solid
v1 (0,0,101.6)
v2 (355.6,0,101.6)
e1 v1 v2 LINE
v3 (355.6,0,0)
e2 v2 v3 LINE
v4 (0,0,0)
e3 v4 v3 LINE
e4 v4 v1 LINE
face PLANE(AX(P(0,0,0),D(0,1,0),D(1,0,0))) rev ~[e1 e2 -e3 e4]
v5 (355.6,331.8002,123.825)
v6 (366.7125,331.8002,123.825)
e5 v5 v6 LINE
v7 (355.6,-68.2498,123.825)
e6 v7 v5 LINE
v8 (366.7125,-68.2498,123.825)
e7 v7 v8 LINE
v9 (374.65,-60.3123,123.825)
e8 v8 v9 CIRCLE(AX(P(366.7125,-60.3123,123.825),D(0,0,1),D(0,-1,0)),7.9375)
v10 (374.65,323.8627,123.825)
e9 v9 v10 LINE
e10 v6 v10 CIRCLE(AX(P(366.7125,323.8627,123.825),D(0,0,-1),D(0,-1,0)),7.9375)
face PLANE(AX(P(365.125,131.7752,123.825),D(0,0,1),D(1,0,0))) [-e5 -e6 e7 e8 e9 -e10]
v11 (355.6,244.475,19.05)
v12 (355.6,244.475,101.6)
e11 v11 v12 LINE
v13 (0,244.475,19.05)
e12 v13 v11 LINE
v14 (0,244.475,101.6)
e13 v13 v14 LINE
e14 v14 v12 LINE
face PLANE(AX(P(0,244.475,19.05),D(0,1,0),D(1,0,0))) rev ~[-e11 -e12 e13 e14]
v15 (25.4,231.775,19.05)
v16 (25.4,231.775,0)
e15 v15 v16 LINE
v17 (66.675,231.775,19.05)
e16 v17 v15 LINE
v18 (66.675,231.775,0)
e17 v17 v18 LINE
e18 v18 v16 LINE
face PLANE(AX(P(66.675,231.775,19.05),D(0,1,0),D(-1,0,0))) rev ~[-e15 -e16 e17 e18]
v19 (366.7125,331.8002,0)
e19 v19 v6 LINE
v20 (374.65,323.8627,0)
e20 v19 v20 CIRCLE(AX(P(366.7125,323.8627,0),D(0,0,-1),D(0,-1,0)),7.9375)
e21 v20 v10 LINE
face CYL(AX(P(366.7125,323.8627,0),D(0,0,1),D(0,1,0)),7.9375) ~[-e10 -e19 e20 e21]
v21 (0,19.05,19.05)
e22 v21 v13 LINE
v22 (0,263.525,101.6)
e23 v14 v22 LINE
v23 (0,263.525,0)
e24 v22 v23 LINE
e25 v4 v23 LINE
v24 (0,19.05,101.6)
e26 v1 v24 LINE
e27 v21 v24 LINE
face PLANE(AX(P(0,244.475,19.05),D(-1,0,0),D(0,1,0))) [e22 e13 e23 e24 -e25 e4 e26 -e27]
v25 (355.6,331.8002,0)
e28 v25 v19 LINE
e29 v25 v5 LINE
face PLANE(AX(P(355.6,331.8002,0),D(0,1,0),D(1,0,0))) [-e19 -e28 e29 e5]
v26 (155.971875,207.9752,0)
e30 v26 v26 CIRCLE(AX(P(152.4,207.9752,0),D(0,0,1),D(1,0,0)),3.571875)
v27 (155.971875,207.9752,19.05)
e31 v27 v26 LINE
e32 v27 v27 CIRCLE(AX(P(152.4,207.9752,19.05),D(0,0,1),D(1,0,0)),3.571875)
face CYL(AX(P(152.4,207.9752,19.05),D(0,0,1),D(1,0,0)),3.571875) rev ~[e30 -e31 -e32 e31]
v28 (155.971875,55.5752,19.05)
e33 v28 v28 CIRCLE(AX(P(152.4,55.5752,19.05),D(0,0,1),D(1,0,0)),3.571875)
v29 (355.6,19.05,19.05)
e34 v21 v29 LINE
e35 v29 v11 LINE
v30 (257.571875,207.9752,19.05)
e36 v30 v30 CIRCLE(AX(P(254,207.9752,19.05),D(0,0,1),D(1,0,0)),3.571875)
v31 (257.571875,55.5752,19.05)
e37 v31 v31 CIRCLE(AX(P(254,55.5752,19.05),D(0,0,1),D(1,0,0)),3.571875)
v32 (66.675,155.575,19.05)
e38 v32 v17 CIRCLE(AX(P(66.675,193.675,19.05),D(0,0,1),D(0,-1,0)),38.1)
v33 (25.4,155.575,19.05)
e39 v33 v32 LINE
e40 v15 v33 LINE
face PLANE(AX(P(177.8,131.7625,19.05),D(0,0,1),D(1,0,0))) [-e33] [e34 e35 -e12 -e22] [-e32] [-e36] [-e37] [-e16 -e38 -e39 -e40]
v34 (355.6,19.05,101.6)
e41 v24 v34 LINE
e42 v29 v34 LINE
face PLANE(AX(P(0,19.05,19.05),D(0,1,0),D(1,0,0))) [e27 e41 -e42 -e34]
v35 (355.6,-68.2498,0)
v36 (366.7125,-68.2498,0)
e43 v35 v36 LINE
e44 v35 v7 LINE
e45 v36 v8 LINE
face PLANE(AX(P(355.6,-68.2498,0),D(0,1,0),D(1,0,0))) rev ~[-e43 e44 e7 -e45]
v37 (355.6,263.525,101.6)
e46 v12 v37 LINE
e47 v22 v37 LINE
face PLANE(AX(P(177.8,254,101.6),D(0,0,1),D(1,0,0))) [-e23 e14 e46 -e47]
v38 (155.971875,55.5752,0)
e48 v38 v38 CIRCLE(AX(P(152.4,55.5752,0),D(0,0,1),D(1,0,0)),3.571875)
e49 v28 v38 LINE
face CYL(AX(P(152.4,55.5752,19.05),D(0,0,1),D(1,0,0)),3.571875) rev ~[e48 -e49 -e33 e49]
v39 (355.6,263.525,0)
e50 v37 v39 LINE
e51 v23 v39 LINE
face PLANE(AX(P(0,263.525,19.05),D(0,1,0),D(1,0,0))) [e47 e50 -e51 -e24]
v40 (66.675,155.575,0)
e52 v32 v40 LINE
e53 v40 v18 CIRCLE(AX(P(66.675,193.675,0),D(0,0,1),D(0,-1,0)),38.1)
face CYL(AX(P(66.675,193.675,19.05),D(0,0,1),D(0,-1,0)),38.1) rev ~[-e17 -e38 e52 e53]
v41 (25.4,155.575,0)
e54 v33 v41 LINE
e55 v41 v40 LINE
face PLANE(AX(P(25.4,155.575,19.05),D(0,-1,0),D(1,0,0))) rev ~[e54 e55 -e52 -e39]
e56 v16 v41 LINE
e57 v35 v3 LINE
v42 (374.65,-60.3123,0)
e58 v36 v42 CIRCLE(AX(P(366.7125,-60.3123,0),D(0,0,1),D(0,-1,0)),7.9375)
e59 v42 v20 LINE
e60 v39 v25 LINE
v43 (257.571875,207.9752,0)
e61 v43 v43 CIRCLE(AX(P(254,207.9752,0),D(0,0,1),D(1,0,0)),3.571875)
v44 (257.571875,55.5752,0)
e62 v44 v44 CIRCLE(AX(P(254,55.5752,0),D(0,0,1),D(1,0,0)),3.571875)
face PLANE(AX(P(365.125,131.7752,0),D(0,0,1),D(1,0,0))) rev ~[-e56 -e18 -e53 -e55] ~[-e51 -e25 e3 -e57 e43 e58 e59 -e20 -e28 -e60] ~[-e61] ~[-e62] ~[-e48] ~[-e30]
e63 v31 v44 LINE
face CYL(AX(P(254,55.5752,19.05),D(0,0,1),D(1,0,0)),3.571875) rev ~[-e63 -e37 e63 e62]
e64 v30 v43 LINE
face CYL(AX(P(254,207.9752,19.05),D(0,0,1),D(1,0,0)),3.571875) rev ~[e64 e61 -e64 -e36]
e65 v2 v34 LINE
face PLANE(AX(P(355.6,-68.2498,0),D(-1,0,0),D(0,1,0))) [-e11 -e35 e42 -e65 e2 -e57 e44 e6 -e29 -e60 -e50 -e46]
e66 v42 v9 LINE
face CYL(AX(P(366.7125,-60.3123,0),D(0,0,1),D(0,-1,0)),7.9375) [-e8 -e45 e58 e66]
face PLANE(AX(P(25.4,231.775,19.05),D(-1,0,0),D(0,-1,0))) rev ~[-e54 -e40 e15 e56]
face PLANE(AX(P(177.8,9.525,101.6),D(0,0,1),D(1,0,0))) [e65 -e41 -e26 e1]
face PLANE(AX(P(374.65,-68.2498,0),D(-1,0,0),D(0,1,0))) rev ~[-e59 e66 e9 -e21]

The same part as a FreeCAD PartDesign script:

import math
import FreeCAD as App
import Part
import Sketcher
Q = App.Units.Quantity


def edges_at(feature, points):
    """Names of the edges that pass closest to the given points."""
    edges = feature.Shape.Edges
    near = lambda p: min(range(len(edges)), key=lambda i: edges[i].distToShape(Part.Vertex(*p))[0])
    return sorted({f"Edge{near(p) + 1}" for p in points})


def add_polygon(sketch, points):
    """Adds a closed chain of lines whose ends are joined by coincident constraints."""
    first, n = sketch.GeometryCount, len(points)
    for a, b in zip(points, points[1:] + points[:1]):
        sketch.addGeometry(Part.LineSegment(App.Vector(*a, 0), App.Vector(*b, 0)), False)
    for i in range(n):
        sketch.addConstraint(Sketcher.Constraint("Coincident", first + i, 2, first + (i + 1) % n, 1))

doc = App.newDocument("Part")
params = doc.addObject("Spreadsheet::Sheet", "Params")
for row, (alias, value) in enumerate([
    ("sketch1_width", "14 in"),
    ("sketch1_height", "10.375 in"),
    ("pad1_length", "0.75 in"),
    ("sketch2_width", "14 in"),
    ("sketch2_height", "0.75 in"),
    ("pad2_length", "3.25 in"),
    ("sketch3_width", "0.75 in"),
    ("sketch3_height", "15.75 in"),
    ("pad3_length", "4.875 in"),
    ("fillet_radius", "0.3125 in"),
    ("sketch4_radius", "1.5 in"),
    ("sketch4_width", "1.625 in"),
    ("pocket1_length", "1 in"),
    ("sketch5_diameter", "0.28125 in"),
    ("pocket2_length", "1 in"),
], start=1):
    params.set(f"A{row}", alias)
    params.set(f"B{row}", "=" + value)
    params.setAlias(f"B{row}", alias)

body = doc.addObject("PartDesign::Body", "Body")

# Sketch on XY plane
sketch1 = body.newObject("Sketcher::SketchObject", "Sketch")
sketch1.AttachmentSupport = (doc.getObject("XY_Plane"), [""])
sketch1.MapMode = "FlatFace"
add_polygon(sketch1, [(0, 264), (0, 0), (356, 0), (356, 264)])  # lines 0-3
sketch1.addConstraint([
    Sketcher.Constraint("Vertical", 0),
    Sketcher.Constraint("Horizontal", 1),
    Sketcher.Constraint("Vertical", 2),
    Sketcher.Constraint("Horizontal", 3),
    Sketcher.Constraint("Coincident", 0, 2, -1, 1),
    Sketcher.Constraint("DistanceX", 1, 1, 1, 2, Q("14 in")),
    Sketcher.Constraint("DistanceY", 0, 2, 0, 1, Q("10.375 in")),
])
sketch1.setExpression("Constraints[9]", "Params.sketch1_width")
sketch1.setExpression("Constraints[10]", "Params.sketch1_height")
pad1 = body.newObject("PartDesign::Pad", "Pad")
pad1.Profile = sketch1
pad1.setExpression("Length", "Params.pad1_length")

# Sketch on XY plane
sketch2 = body.newObject("Sketcher::SketchObject", "Sketch001")
sketch2.AttachmentSupport = (doc.getObject("XY_Plane"), [""])
sketch2.MapMode = "FlatFace"
sketch2.AttachmentOffset = App.Placement(App.Vector(0, 0, 0.75 * 25.4), App.Rotation())
add_polygon(sketch2, [(0, 264), (0, 244), (356, 244), (356, 264)])  # lines 0-3
add_polygon(sketch2, [(0, 19), (0, 0), (356, 0), (356, 19)])  # lines 4-7
sketch2.addConstraint([
    Sketcher.Constraint("Vertical", 0),
    Sketcher.Constraint("Horizontal", 1),
    Sketcher.Constraint("Vertical", 2),
    Sketcher.Constraint("Horizontal", 3),
    Sketcher.Constraint("Vertical", 4),
    Sketcher.Constraint("Horizontal", 5),
    Sketcher.Constraint("Vertical", 6),
    Sketcher.Constraint("Horizontal", 7),
    Sketcher.Constraint("Coincident", 4, 2, -1, 1),
    Sketcher.Constraint("PointOnObject", 0, 2, -2),
    Sketcher.Constraint("Vertical", 2, 2, 5, 2),
    Sketcher.Constraint("Equal", 2, 4),
    Sketcher.Constraint("DistanceX", 1, 1, 1, 2, Q("14 in")),
    Sketcher.Constraint("DistanceY", 0, 2, 0, 1, Q("0.75 in")),
    Sketcher.Constraint("DistanceY", -1, 1, 0, 2, Q("9.625 in")),
])
sketch2.setExpression("Constraints[20]", "Params.sketch2_width")
sketch2.setExpression("Constraints[21]", "Params.sketch2_height")
pad2 = body.newObject("PartDesign::Pad", "Pad001")
pad2.Profile = sketch2
pad2.setExpression("Length", "Params.pad2_length")

# Sketch on XY plane
sketch3 = body.newObject("Sketcher::SketchObject", "Sketch002")
sketch3.AttachmentSupport = (doc.getObject("XY_Plane"), [""])
sketch3.MapMode = "FlatFace"
add_polygon(sketch3, [(356, 332), (356, -68), (375, -68), (375, 332)])  # lines 0-3
sketch3.addConstraint([
    Sketcher.Constraint("Vertical", 0),
    Sketcher.Constraint("Horizontal", 1),
    Sketcher.Constraint("Vertical", 2),
    Sketcher.Constraint("Horizontal", 3),
    Sketcher.Constraint("DistanceX", -1, 1, 0, 2, Q("14 in")),
    Sketcher.Constraint("DistanceX", 1, 1, 1, 2, Q("0.75 in")),
    Sketcher.Constraint("DistanceY", 0, 2, 0, 1, Q("15.75 in")),
    Sketcher.Constraint("DistanceY", 0, 2, -1, 1, Q("2.687 in")),
])
sketch3.setExpression("Constraints[9]", "Params.sketch3_width")
sketch3.setExpression("Constraints[10]", "Params.sketch3_height")
pad3 = body.newObject("PartDesign::Pad", "Pad002")
pad3.Profile = sketch3
pad3.setExpression("Length", "Params.pad3_length")
doc.recompute()

fillet = body.newObject("PartDesign::Fillet", "Fillet")
fillet.Base = (pad3, edges_at(pad3, [(374.65, 331.8, 61.913), (374.65, -68.25, 61.913)]))
fillet.setExpression("Radius", "Params.fillet_radius")

# Sketch on XY plane
sketch4 = body.newObject("Sketcher::SketchObject", "Sketch003")
sketch4.AttachmentSupport = (doc.getObject("XY_Plane"), [""])
sketch4.MapMode = "FlatFace"
sketch4.AttachmentOffset = App.Placement(App.Vector(0, 0, 0.75 * 25.4), App.Rotation())
sketch4.addGeometry([
    Part.LineSegment(App.Vector(67, 232, 0), App.Vector(25, 232, 0)),
    Part.LineSegment(App.Vector(25, 232, 0), App.Vector(25, 156, 0)),
    Part.LineSegment(App.Vector(25, 156, 0), App.Vector(67, 156, 0)),
    Part.ArcOfCircle(Part.Circle(App.Vector(67, 194, 0), App.Vector(0, 0, 1), 38), math.radians(-90), math.radians(90)),
], False)
sketch4.addConstraint([
    Sketcher.Constraint("Coincident", 0, 2, 1, 1),
    Sketcher.Constraint("Coincident", 1, 2, 2, 1),
    Sketcher.Constraint("Tangent", 2, 2, 3, 1),
    Sketcher.Constraint("Tangent", 3, 2, 0, 1),
    Sketcher.Constraint("Horizontal", 0),
    Sketcher.Constraint("Vertical", 1),
    Sketcher.Constraint("Horizontal", 2),
    Sketcher.Constraint("Radius", 3, Q("1.5 in")),
    Sketcher.Constraint("DistanceX", -1, 1, 0, 2, Q("1 in")),
    Sketcher.Constraint("DistanceX", 0, 2, 0, 1, Q("1.625 in")),
    Sketcher.Constraint("DistanceY", -1, 1, 3, 3, Q("7.625 in")),
])
sketch4.setExpression("Constraints[7]", "Params.sketch4_radius")
sketch4.setExpression("Constraints[9]", "Params.sketch4_width")
pocket1 = body.newObject("PartDesign::Pocket", "Pocket")
pocket1.Profile = sketch4
pocket1.setExpression("Length", "Params.pocket1_length")

# Sketch on XY plane
sketch5 = body.newObject("Sketcher::SketchObject", "Sketch004")
sketch5.AttachmentSupport = (doc.getObject("XY_Plane"), [""])
sketch5.MapMode = "FlatFace"
sketch5.AttachmentOffset = App.Placement(App.Vector(0, 0, 0.75 * 25.4), App.Rotation())
sketch5.addGeometry([
    Part.Circle(App.Vector(152.4, 208, 0), App.Vector(0, 0, 1), 3.6),
    Part.Circle(App.Vector(152.4, 55.6, 0), App.Vector(0, 0, 1), 3.6),
    Part.Circle(App.Vector(254, 208, 0), App.Vector(0, 0, 1), 3.6),
    Part.Circle(App.Vector(254, 55.6, 0), App.Vector(0, 0, 1), 3.6),
], False)
sketch5.addConstraint([
    Sketcher.Constraint("Equal", 0, 1),
    Sketcher.Constraint("Equal", 1, 2),
    Sketcher.Constraint("Equal", 2, 3),
    Sketcher.Constraint("Horizontal", 0, 3, 2, 3),
    Sketcher.Constraint("Horizontal", 1, 3, 3, 3),
    Sketcher.Constraint("Vertical", 0, 3, 1, 3),
    Sketcher.Constraint("Vertical", 2, 3, 3, 3),
    Sketcher.Constraint("Diameter", 0, Q("0.28125 in")),
    Sketcher.Constraint("DistanceX", -1, 1, 0, 3, Q("6 in")),
    Sketcher.Constraint("DistanceX", -1, 1, 2, 3, Q("10 in")),
    Sketcher.Constraint("DistanceY", 1, 3, 0, 3, Q("6 in")),
    Sketcher.Constraint("DistanceY", -1, 1, 0, 3, Q("8.188 in")),
])
sketch5.setExpression("Constraints[7]", "Params.sketch5_diameter")
pocket2 = body.newObject("PartDesign::Pocket", "Pocket001")
pocket2.Profile = sketch5
pocket2.setExpression("Length", "Params.pocket2_length")

doc.recompute()
